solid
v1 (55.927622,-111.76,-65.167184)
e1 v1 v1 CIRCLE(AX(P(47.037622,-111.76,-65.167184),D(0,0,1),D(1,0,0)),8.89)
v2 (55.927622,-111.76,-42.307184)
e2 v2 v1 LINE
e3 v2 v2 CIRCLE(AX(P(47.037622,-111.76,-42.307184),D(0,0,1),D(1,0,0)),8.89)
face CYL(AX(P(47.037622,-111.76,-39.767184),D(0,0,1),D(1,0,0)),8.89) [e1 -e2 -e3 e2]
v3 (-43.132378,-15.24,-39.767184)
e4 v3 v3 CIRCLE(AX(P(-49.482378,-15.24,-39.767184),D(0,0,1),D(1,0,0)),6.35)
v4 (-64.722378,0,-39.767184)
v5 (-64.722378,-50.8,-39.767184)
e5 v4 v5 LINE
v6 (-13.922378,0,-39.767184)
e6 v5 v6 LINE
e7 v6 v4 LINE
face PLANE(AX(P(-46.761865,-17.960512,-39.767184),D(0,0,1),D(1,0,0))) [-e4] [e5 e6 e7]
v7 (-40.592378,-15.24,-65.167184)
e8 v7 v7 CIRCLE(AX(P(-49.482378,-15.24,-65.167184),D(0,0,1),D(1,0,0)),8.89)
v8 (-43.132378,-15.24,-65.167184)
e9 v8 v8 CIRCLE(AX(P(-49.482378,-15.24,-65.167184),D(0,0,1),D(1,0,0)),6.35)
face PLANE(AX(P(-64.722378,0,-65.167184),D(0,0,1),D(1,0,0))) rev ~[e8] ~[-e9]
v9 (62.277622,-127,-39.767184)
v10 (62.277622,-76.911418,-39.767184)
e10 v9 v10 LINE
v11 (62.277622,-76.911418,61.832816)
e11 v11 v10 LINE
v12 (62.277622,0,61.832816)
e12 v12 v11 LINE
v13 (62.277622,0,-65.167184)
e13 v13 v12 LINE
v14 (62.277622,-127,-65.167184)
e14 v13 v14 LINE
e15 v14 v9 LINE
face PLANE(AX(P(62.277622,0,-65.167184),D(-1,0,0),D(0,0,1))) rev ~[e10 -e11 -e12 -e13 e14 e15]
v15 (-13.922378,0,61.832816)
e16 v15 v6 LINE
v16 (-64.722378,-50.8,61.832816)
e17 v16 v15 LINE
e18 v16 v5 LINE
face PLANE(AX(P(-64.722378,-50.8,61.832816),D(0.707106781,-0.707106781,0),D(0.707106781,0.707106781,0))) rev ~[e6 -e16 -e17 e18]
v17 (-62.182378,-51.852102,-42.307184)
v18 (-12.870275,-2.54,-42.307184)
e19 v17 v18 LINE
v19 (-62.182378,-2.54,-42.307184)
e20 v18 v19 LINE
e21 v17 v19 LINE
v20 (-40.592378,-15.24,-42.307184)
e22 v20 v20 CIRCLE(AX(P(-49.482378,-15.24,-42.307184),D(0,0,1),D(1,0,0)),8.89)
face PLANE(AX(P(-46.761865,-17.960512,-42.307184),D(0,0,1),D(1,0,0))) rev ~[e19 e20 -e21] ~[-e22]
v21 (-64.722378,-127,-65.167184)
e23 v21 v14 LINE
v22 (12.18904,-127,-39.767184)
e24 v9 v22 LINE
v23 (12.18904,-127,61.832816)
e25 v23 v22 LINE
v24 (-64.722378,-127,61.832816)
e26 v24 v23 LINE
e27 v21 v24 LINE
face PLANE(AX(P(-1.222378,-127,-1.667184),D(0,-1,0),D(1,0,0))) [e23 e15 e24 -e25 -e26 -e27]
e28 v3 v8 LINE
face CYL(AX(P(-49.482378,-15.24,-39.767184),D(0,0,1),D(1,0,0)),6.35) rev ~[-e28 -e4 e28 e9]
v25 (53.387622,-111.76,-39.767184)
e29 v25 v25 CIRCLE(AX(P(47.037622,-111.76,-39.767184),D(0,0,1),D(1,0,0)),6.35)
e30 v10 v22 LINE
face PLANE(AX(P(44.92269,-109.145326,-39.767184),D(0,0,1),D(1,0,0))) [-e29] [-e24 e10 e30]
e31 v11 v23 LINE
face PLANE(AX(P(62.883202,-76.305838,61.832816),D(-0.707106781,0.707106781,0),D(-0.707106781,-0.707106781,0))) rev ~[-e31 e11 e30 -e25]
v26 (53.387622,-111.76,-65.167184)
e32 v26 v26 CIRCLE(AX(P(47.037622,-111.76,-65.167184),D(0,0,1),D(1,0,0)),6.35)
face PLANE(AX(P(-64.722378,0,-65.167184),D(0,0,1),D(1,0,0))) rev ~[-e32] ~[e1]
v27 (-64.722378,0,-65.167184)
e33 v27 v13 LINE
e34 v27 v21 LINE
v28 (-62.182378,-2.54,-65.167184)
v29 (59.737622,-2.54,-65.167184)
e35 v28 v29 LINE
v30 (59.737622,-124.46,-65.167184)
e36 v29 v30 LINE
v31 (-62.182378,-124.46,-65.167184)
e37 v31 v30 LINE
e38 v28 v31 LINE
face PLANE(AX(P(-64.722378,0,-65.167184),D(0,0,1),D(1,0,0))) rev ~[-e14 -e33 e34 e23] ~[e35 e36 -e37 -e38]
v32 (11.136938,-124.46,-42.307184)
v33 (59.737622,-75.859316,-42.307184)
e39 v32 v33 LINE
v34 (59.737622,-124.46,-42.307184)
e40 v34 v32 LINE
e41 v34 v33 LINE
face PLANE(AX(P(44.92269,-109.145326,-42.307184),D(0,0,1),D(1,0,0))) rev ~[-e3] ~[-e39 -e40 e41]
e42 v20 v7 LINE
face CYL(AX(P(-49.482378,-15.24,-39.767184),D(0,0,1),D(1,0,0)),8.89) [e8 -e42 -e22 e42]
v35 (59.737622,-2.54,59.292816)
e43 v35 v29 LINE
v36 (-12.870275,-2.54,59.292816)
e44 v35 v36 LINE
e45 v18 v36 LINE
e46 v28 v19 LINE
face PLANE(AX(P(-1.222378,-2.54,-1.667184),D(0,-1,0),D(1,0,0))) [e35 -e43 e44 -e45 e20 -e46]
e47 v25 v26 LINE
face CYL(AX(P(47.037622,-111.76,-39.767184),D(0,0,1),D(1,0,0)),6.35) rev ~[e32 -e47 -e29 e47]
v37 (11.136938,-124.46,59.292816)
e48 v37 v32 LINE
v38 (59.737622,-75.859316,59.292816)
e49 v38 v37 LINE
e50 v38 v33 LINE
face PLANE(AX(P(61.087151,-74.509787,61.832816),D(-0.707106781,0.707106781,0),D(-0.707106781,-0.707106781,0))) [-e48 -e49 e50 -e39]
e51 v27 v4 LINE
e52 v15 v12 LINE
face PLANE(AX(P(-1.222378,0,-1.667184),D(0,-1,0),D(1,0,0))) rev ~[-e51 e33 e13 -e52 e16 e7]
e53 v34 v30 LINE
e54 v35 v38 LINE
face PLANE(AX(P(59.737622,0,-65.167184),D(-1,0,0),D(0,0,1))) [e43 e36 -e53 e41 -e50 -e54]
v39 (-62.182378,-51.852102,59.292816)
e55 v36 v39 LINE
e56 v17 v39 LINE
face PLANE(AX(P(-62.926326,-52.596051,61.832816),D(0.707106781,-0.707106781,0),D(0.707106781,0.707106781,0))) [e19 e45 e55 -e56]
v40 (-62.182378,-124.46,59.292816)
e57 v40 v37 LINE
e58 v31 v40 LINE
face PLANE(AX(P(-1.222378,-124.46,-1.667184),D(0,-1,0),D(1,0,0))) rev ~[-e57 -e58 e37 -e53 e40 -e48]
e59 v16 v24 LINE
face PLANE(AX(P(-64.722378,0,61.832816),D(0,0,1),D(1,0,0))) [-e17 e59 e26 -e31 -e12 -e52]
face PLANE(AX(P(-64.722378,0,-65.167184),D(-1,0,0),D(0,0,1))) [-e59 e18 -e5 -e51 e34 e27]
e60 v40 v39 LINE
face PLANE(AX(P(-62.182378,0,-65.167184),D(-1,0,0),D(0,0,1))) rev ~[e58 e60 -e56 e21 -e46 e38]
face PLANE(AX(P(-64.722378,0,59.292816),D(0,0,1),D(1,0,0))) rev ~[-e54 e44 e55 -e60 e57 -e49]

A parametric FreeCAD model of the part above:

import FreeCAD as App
import Part
import Sketcher
from FreeCAD import Vector
Q = App.Units.Quantity


def faces_at(feature, points):
    """Names of the faces that lie closest to the given points."""
    faces = feature.Shape.Faces
    near = lambda p: min(range(len(faces)), key=lambda i: faces[i].distToShape(Part.Vertex(*p))[0])
    return sorted({f"Face{near(p) + 1}" for p in points})

doc = App.newDocument("Part")
body = doc.addObject("PartDesign::Body", "Body")

# Sketch on XZ plane
sketch1 = doc.addObject("Sketcher::SketchObject", "Sketch")
body.addObject(sketch1)
sketch1.AttachmentSupport = (doc.XZ_Plane, [""])
sketch1.MapMode = "FlatFace"
sketch1.addGeometry(Part.LineSegment(Vector(-65, 62, 0), Vector(-65, -65, 0)), False)
sketch1.addGeometry(Part.LineSegment(Vector(-65, -65, 0), Vector(62, -65, 0)), False)
sketch1.addGeometry(Part.LineSegment(Vector(62, -65, 0), Vector(62, 62, 0)), False)
sketch1.addGeometry(Part.LineSegment(Vector(62, 62, 0), Vector(-65, 62, 0)), False)
sketch1.addConstraint(Sketcher.Constraint("Coincident", 0, 2, 1, 1))
sketch1.addConstraint(Sketcher.Constraint("Coincident", 1, 2, 2, 1))
sketch1.addConstraint(Sketcher.Constraint("Coincident", 2, 2, 3, 1))
sketch1.addConstraint(Sketcher.Constraint("Coincident", 3, 2, 0, 1))
sketch1.addConstraint(Sketcher.Constraint("Vertical", 0))
sketch1.addConstraint(Sketcher.Constraint("Horizontal", 1))
sketch1.addConstraint(Sketcher.Constraint("Vertical", 2))
sketch1.addConstraint(Sketcher.Constraint("Horizontal", 3))
sketch1.addConstraint(Sketcher.Constraint("Equal", 3, 0))
sketch1.addConstraint(Sketcher.Constraint("DistanceX", 1, 1, 1, 2, Q("5 in")))
sketch1.addConstraint(Sketcher.Constraint("DistanceX", 0, 2, -1, 1, Q("64.722378 mm")))
sketch1.addConstraint(Sketcher.Constraint("DistanceY", 0, 2, -1, 1, Q("65.167184 mm")))
pad1 = doc.addObject("PartDesign::Pad", "Pad")
body.addObject(pad1)
pad1.Profile = sketch1
pad1.Length = Q("5 in")

# Sketch on XY plane
sketch2 = doc.addObject("Sketcher::SketchObject", "Sketch001")
body.addObject(sketch2)
sketch2.AttachmentSupport = (doc.XY_Plane, [""])
sketch2.MapMode = "FlatFace"
sketch2.AttachmentOffset = App.Placement(Vector(0, 0, 61.832816), App.Rotation())
sketch2.addGeometry(Part.LineSegment(Vector(63, -127, 0), Vector(63, -76, 0)), False)
sketch2.addGeometry(Part.LineSegment(Vector(63, -76, 0), Vector(12, -127, 0)), False)
sketch2.addGeometry(Part.LineSegment(Vector(12, -127, 0), Vector(63, -127, 0)), False)
sketch2.addGeometry(Part.LineSegment(Vector(-14, 0, 0), Vector(-65, 0, 0)), False)
sketch2.addGeometry(Part.LineSegment(Vector(-65, 0, 0), Vector(-65, -51, 0)), False)
sketch2.addGeometry(Part.LineSegment(Vector(-65, -51, 0), Vector(-14, 0, 0)), False)
sketch2.addConstraint(Sketcher.Constraint("Coincident", 0, 2, 1, 1))
sketch2.addConstraint(Sketcher.Constraint("Coincident", 1, 2, 2, 1))
sketch2.addConstraint(Sketcher.Constraint("Coincident", 2, 2, 0, 1))
sketch2.addConstraint(Sketcher.Constraint("Coincident", 3, 2, 4, 1))
sketch2.addConstraint(Sketcher.Constraint("Coincident", 4, 2, 5, 1))
sketch2.addConstraint(Sketcher.Constraint("Coincident", 5, 2, 3, 1))
sketch2.addConstraint(Sketcher.Constraint("Vertical", 0))
sketch2.addConstraint(Sketcher.Constraint("Horizontal", 2))
sketch2.addConstraint(Sketcher.Constraint("Horizontal", 3))
sketch2.addConstraint(Sketcher.Constraint("Vertical", 4))
sketch2.addConstraint(Sketcher.Constraint("PointOnObject", 3, 2, -1))
sketch2.addConstraint(Sketcher.Constraint("Parallel", 1, 5))
sketch2.addConstraint(Sketcher.Constraint("Equal", 2, 3))
sketch2.addConstraint(Sketcher.Constraint("Equal", 3, 0))
sketch2.addConstraint(Sketcher.Constraint("DistanceX", 2, 1, 2, 2, Q("2 in")))
sketch2.addConstraint(Sketcher.Constraint("DistanceX", 3, 2, 1, 2, Q("76.80558 mm")))
sketch2.addConstraint(Sketcher.Constraint("DistanceX", -1, 1, 0, 2, Q("62.883202 mm")))
sketch2.addConstraint(Sketcher.Constraint("DistanceY", 0, 2, -1, 1, Q("76.305838 mm")))
pocket1 = doc.addObject("PartDesign::Pocket", "Pocket")
body.addObject(pocket1)
pocket1.Profile = sketch2
pocket1.Length = Q("4 in")

# Sketch on XY plane
sketch3 = doc.addObject("Sketcher::SketchObject", "Sketch002")
body.addObject(sketch3)
sketch3.AttachmentSupport = (doc.XY_Plane, [""])
sketch3.MapMode = "FlatFace"
sketch3.AttachmentOffset = App.Placement(Vector(0, 0, -39.767184), App.Rotation())
sketch3.addGeometry(Part.Circle(Vector(-49, -15, 0), Vector(0, 0, 1), 6), False)
sketch3.addGeometry(Part.Circle(Vector(47, -112, 0), Vector(0, 0, 1), 6), False)
sketch3.addConstraint(Sketcher.Constraint("Equal", 0, 1))
sketch3.addConstraint(Sketcher.Constraint("Diameter", 0, Q("0.5 in")))
sketch3.addConstraint(Sketcher.Constraint("DistanceY", 0, 3, -1, 1, Q("0.6 in")))
sketch3.addConstraint(Sketcher.Constraint("DistanceY", 1, 3, -1, 1, Q("4.4 in")))
sketch3.addConstraint(Sketcher.Constraint("DistanceX", 0, 3, 1, 3, Q("3.8 in")))
sketch3.addConstraint(Sketcher.Constraint("DistanceX", 0, 3, -1, 1, Q("49.482378 mm")))
pocket2 = doc.addObject("PartDesign::Pocket", "Pocket001")
body.addObject(pocket2)
pocket2.Profile = sketch3
pocket2.Length = Q("8 in")
doc.recompute()

thickness = doc.addObject("PartDesign::Thickness", "Thickness")
body.addObject(thickness)
thickness.Base = (pocket2, faces_at(pocket2, [(-1.222, -63.5, -65.167)]))
thickness.Value = Q("0.1 in")
thickness.Reversed = True
thickness.Join = "Intersection"

doc.recompute()
